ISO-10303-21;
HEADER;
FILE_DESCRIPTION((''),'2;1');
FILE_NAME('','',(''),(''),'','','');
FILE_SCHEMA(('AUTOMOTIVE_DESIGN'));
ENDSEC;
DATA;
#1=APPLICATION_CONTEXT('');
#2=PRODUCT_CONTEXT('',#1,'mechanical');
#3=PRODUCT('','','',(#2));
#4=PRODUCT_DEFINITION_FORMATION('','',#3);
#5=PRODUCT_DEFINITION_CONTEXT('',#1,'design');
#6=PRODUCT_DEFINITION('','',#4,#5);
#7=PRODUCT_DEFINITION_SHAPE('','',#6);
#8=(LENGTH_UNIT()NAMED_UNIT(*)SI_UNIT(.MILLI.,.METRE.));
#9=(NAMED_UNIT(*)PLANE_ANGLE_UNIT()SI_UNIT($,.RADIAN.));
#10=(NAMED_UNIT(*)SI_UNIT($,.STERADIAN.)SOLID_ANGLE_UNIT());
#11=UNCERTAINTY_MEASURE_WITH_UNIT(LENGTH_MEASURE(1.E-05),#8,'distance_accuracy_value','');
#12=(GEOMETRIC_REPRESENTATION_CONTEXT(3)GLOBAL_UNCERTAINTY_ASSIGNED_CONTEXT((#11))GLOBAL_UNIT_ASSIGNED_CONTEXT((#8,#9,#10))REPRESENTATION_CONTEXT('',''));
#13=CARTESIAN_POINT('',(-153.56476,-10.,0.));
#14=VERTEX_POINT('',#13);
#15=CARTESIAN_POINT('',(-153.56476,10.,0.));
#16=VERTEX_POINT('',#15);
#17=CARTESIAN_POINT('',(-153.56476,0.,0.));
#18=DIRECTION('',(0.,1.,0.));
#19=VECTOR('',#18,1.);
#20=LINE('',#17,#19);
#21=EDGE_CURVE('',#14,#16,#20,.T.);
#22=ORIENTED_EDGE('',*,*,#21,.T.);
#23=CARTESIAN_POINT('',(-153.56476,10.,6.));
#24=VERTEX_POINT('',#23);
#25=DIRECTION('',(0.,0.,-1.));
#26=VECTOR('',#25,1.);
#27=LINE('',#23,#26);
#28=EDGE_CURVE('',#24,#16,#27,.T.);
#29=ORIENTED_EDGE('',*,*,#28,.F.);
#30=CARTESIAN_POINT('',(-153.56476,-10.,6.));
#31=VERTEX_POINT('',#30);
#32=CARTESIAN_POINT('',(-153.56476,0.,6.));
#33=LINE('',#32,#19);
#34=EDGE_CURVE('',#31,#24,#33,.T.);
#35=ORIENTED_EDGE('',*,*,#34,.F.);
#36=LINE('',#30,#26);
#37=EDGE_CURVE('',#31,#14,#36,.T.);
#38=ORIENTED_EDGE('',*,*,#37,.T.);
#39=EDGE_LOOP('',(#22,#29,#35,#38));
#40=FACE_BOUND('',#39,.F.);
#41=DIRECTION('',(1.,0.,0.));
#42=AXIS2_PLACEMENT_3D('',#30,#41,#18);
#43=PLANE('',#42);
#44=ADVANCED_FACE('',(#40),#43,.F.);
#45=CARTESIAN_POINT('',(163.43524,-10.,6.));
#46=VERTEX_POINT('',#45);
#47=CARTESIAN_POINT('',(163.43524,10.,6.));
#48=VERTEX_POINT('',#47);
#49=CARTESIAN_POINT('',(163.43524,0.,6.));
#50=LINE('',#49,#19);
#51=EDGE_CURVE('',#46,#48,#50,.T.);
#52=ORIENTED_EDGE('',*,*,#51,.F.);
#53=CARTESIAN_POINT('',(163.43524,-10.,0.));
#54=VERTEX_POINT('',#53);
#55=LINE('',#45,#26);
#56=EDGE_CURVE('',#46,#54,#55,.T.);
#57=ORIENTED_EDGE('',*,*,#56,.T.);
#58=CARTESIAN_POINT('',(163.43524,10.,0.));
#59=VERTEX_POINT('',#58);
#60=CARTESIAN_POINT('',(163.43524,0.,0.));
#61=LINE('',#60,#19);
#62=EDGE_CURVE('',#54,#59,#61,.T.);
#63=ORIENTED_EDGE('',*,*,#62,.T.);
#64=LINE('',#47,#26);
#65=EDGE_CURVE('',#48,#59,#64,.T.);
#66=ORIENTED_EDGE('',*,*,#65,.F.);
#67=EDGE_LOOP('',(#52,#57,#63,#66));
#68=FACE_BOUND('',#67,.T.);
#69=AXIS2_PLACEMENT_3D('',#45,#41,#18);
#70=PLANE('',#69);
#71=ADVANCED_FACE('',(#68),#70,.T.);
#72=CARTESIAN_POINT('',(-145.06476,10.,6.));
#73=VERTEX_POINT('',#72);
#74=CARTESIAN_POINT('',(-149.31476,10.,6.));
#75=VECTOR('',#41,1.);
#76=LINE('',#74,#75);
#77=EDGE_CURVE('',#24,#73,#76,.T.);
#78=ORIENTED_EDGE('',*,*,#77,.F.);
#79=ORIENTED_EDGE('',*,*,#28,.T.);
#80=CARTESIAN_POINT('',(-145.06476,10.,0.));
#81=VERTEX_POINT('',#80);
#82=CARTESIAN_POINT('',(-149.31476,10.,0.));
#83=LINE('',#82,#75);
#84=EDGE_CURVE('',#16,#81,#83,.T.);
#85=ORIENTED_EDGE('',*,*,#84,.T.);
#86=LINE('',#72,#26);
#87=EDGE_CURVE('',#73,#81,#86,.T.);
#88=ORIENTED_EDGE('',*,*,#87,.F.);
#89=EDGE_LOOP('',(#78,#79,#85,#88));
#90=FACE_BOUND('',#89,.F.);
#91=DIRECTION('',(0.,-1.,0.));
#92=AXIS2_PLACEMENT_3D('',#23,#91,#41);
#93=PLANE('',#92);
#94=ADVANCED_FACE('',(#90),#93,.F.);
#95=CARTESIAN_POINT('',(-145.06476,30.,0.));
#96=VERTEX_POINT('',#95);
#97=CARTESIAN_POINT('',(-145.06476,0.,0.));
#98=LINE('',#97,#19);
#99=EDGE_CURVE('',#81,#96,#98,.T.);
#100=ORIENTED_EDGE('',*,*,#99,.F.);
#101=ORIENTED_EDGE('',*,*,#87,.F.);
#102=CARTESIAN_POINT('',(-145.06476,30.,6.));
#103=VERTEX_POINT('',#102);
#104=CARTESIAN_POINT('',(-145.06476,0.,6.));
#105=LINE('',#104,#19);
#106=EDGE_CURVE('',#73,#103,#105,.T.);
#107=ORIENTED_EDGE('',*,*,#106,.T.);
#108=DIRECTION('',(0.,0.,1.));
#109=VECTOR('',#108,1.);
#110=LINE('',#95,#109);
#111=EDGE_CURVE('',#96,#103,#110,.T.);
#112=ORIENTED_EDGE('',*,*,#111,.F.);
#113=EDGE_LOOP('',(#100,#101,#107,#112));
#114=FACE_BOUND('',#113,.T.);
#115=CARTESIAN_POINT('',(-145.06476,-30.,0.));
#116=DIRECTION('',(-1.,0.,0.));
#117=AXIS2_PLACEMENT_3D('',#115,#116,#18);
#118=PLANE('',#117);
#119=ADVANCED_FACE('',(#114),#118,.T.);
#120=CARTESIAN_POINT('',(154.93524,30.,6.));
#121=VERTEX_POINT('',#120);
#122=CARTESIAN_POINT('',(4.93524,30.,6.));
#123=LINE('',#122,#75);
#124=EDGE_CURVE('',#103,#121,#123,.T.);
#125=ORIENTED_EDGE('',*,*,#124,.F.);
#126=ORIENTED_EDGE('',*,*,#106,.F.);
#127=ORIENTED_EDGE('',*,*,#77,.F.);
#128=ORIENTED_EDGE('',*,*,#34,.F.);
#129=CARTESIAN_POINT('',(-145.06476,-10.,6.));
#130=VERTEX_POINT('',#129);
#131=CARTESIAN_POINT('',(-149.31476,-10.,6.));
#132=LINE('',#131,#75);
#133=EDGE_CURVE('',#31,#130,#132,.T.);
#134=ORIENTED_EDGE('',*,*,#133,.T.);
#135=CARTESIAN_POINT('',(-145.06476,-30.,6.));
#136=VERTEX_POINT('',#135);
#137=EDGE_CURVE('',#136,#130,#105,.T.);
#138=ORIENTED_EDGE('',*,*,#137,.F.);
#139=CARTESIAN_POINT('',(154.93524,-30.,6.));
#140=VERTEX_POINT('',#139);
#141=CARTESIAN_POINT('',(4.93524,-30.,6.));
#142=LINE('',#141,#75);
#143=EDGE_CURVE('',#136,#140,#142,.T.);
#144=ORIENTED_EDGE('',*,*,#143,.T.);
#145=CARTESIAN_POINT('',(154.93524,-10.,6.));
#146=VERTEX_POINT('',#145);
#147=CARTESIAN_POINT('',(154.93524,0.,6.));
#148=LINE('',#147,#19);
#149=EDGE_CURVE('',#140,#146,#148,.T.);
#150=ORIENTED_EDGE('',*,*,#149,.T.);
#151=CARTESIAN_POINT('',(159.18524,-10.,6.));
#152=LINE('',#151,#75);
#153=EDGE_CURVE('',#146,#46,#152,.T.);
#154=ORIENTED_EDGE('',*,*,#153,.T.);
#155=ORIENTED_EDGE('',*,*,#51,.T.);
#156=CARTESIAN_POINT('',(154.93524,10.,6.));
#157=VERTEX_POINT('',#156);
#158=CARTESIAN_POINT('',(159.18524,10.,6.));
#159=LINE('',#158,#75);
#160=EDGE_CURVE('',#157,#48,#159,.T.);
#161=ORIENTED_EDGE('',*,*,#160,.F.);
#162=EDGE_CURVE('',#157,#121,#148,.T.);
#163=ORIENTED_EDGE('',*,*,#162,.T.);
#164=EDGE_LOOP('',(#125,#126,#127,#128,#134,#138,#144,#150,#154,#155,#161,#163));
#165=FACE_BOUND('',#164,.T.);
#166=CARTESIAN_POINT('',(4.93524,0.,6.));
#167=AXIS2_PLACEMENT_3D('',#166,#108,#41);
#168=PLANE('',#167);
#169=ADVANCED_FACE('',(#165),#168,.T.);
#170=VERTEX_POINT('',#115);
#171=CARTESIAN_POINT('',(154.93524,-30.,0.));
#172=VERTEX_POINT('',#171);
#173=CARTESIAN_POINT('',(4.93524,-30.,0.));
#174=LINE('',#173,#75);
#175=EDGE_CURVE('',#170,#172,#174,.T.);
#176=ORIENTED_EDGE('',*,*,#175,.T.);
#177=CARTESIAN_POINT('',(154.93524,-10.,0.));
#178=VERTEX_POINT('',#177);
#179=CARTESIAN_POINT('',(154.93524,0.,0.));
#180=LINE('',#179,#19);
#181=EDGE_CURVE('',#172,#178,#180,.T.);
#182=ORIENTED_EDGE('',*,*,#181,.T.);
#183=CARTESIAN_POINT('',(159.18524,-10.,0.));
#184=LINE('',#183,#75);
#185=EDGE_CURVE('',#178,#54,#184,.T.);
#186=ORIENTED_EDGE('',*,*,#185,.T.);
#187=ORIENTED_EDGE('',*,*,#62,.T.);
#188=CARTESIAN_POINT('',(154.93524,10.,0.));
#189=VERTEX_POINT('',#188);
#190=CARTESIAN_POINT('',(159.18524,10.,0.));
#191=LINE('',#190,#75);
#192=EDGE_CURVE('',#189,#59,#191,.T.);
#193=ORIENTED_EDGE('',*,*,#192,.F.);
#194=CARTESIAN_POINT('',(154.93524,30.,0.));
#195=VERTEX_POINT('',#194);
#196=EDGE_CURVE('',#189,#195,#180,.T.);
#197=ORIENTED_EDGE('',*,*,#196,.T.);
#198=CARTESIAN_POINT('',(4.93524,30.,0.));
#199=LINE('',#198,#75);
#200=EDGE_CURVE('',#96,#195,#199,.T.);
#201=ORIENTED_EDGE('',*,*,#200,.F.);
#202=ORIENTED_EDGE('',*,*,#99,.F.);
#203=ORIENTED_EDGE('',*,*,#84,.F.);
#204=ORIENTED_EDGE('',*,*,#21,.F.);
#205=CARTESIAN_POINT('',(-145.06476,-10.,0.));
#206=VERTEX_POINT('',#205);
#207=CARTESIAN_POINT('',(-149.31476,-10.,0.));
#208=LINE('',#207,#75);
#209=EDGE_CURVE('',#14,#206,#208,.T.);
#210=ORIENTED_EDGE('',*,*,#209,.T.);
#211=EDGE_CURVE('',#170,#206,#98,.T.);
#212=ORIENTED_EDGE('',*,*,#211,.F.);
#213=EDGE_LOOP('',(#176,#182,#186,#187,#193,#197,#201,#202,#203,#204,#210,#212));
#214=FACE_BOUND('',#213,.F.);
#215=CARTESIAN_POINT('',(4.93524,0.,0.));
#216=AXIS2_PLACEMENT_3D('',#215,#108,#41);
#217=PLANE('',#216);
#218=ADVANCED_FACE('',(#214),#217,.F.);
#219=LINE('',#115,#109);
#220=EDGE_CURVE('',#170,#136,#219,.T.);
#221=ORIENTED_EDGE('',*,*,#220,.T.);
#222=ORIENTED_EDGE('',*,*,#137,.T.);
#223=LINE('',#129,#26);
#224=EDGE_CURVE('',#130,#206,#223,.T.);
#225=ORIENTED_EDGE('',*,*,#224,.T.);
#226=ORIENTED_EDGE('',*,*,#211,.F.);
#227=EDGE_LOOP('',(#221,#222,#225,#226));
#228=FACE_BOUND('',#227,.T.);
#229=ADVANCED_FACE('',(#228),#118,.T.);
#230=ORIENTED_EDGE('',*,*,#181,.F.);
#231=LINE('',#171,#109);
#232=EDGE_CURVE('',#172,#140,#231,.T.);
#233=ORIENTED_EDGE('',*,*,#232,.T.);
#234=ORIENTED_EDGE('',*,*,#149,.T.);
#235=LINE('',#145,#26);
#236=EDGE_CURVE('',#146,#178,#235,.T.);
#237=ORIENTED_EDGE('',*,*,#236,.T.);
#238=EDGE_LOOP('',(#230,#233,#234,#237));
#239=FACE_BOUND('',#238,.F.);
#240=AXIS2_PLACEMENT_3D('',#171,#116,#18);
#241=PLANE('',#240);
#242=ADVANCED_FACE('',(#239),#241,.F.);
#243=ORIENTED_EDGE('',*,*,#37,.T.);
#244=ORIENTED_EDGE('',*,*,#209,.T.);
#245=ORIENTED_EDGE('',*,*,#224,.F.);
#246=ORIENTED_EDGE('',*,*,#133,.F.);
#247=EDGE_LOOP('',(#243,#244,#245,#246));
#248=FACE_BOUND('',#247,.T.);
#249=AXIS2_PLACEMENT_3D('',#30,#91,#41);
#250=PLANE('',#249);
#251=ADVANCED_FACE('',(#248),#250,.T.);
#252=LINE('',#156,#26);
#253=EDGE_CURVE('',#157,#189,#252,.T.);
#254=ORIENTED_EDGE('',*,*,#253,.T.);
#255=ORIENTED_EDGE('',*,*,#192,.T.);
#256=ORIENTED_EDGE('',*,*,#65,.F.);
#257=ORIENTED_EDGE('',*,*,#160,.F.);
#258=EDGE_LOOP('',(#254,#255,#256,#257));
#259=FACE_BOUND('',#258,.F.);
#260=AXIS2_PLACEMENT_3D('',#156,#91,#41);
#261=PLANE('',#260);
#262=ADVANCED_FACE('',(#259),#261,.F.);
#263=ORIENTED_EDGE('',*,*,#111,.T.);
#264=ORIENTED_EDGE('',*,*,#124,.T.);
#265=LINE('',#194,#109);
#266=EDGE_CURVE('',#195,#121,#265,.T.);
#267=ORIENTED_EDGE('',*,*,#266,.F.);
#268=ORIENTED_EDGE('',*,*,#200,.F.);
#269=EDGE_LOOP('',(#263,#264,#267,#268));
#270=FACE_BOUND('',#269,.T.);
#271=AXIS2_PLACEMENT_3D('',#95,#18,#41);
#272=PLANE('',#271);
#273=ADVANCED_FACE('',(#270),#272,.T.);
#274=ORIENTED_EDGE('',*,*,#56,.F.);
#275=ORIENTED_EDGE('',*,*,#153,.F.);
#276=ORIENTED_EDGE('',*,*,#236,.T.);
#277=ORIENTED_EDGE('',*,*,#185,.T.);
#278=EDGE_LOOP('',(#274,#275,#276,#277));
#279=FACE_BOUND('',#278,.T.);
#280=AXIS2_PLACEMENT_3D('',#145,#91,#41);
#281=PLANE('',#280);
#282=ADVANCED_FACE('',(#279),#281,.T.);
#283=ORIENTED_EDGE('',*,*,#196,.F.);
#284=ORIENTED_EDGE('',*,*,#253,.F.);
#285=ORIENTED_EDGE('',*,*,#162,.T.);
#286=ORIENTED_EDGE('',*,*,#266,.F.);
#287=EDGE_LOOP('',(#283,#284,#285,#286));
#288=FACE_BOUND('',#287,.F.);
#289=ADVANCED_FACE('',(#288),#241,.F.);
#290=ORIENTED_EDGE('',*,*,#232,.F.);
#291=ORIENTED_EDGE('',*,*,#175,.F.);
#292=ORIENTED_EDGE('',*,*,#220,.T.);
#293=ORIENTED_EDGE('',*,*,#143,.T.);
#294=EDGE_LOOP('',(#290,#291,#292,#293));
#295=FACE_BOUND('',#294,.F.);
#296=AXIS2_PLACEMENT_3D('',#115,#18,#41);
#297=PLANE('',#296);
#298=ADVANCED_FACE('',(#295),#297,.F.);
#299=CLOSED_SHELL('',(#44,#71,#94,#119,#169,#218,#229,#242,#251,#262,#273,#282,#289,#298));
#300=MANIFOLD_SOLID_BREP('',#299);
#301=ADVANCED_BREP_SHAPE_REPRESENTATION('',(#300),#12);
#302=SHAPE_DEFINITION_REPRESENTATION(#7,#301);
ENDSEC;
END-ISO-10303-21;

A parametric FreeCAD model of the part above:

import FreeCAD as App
import Part
import Sketcher

doc = App.newDocument("Part")
params = doc.addObject("Spreadsheet::Sheet", "Params")
for row, (alias, value) in enumerate([
    ("sketch1_width", "300 mm"),
    ("sketch1_height", "60 mm"),
    ("pad1_length", "6 mm"),
    ("sketch2_height", "20 mm"),
    ("sketch2_width", "8.5 mm"),
    ("pad2_length", "6 mm"),
], start=1):
    params.set(f"A{row}", alias)
    params.set(f"B{row}", "=" + value)
    params.setAlias(f"B{row}", alias)

body = doc.addObject("PartDesign::Body", "Body")

# Sketch on XY plane
sketch1 = body.newObject("Sketcher::SketchObject", "Sketch")
sketch1.AttachmentSupport = (doc.getObject("XY_Plane"), [""])
sketch1.MapMode = "FlatFace"
sketch1.addGeometry([
    Part.LineSegment(App.Vector(-145, 30, 0), App.Vector(-145, -30, 0)),
    Part.LineSegment(App.Vector(-145, -30, 0), App.Vector(155, -30, 0)),
    Part.LineSegment(App.Vector(155, -30, 0), App.Vector(155, 30, 0)),
    Part.LineSegment(App.Vector(155, 30, 0), App.Vector(-145, 30, 0)),
], False)
sketch1.addConstraint([
    Sketcher.Constraint("Coincident", 0, 2, 1, 1),
    Sketcher.Constraint("Coincident", 1, 2, 2, 1),
    Sketcher.Constraint("Coincident", 2, 2, 3, 1),
    Sketcher.Constraint("Coincident", 3, 2, 0, 1),
    Sketcher.Constraint("Vertical", 0),
    Sketcher.Constraint("Horizontal", 1),
    Sketcher.Constraint("Vertical", 2),
    Sketcher.Constraint("Horizontal", 3),
    Sketcher.Constraint("DistanceX", 1, 1, 1, 2, 300.0),
    Sketcher.Constraint("DistanceY", 0, 2, 0, 1, 60.0),
    Sketcher.Constraint("DistanceY", 0, 2, -1, 1, 30.0),
    Sketcher.Constraint("DistanceX", 0, 2, -1, 1, 145.06476),
])
sketch1.setExpression("Constraints[8]", "Params.sketch1_width")
sketch1.setExpression("Constraints[9]", "Params.sketch1_height")
pad1 = body.newObject("PartDesign::Pad", "Pad")
pad1.Profile = sketch1
pad1.setExpression("Length", "Params.pad1_length")

# Sketch on XY plane
sketch2 = body.newObject("Sketcher::SketchObject", "Sketch001")
sketch2.AttachmentSupport = (doc.getObject("XY_Plane"), [""])
sketch2.MapMode = "FlatFace"
sketch2.AttachmentOffset = App.Placement(App.Vector(0, 0, 6), App.Rotation())
sketch2.addGeometry([
    Part.LineSegment(App.Vector(-154, 10, 0), App.Vector(-154, -10, 0)),  # 0
    Part.LineSegment(App.Vector(-154, -10, 0), App.Vector(-145, -10, 0)),  # 1
    Part.LineSegment(App.Vector(-145, -10, 0), App.Vector(-145, 10, 0)),  # 2
    Part.LineSegment(App.Vector(-145, 10, 0), App.Vector(-154, 10, 0)),  # 3
    Part.LineSegment(App.Vector(155, 10, 0), App.Vector(155, -10, 0)),  # 4
    Part.LineSegment(App.Vector(155, -10, 0), App.Vector(163, -10, 0)),  # 5
    Part.LineSegment(App.Vector(163, -10, 0), App.Vector(163, 10, 0)),  # 6
    Part.LineSegment(App.Vector(163, 10, 0), App.Vector(155, 10, 0)),  # 7
], False)
sketch2.addConstraint([
    Sketcher.Constraint("Coincident", 0, 2, 1, 1),
    Sketcher.Constraint("Coincident", 1, 2, 2, 1),
    Sketcher.Constraint("Coincident", 2, 2, 3, 1),
    Sketcher.Constraint("Coincident", 3, 2, 0, 1),
    Sketcher.Constraint("Coincident", 4, 2, 5, 1),
    Sketcher.Constraint("Coincident", 5, 2, 6, 1),
    Sketcher.Constraint("Coincident", 6, 2, 7, 1),
    Sketcher.Constraint("Coincident", 7, 2, 4, 1),
    Sketcher.Constraint("Vertical", 0),
    Sketcher.Constraint("Horizontal", 1),
    Sketcher.Constraint("Vertical", 2),
    Sketcher.Constraint("Horizontal", 3),
    Sketcher.Constraint("Vertical", 4),
    Sketcher.Constraint("Horizontal", 5),
    Sketcher.Constraint("Vertical", 6),
    Sketcher.Constraint("Horizontal", 7),
    Sketcher.Constraint("Horizontal", 1, 2, 4, 2),
    Sketcher.Constraint("Horizontal", 3, 2, 6, 2),
    Sketcher.Constraint("Equal", 3, 5),
    Sketcher.Constraint("DistanceY", 0, 2, 0, 1, 20.0),
    Sketcher.Constraint("DistanceX", 1, 1, 1, 2, 8.5),
    Sketcher.Constraint("DistanceY", 0, 2, -1, 1, 10.0),
    Sketcher.Constraint("DistanceX", 1, 2, 4, 2, 300.0),
    Sketcher.Constraint("DistanceX", 0, 2, -1, 1, 153.56476),
])
sketch2.setExpression("Constraints[19]", "Params.sketch2_height")
sketch2.setExpression("Constraints[20]", "Params.sketch2_width")
pad2 = body.newObject("PartDesign::Pad", "Pad001")
pad2.Profile = sketch2
pad2.setExpression("Length", "Params.pad2_length")
pad2.Reversed = True

doc.recompute()
